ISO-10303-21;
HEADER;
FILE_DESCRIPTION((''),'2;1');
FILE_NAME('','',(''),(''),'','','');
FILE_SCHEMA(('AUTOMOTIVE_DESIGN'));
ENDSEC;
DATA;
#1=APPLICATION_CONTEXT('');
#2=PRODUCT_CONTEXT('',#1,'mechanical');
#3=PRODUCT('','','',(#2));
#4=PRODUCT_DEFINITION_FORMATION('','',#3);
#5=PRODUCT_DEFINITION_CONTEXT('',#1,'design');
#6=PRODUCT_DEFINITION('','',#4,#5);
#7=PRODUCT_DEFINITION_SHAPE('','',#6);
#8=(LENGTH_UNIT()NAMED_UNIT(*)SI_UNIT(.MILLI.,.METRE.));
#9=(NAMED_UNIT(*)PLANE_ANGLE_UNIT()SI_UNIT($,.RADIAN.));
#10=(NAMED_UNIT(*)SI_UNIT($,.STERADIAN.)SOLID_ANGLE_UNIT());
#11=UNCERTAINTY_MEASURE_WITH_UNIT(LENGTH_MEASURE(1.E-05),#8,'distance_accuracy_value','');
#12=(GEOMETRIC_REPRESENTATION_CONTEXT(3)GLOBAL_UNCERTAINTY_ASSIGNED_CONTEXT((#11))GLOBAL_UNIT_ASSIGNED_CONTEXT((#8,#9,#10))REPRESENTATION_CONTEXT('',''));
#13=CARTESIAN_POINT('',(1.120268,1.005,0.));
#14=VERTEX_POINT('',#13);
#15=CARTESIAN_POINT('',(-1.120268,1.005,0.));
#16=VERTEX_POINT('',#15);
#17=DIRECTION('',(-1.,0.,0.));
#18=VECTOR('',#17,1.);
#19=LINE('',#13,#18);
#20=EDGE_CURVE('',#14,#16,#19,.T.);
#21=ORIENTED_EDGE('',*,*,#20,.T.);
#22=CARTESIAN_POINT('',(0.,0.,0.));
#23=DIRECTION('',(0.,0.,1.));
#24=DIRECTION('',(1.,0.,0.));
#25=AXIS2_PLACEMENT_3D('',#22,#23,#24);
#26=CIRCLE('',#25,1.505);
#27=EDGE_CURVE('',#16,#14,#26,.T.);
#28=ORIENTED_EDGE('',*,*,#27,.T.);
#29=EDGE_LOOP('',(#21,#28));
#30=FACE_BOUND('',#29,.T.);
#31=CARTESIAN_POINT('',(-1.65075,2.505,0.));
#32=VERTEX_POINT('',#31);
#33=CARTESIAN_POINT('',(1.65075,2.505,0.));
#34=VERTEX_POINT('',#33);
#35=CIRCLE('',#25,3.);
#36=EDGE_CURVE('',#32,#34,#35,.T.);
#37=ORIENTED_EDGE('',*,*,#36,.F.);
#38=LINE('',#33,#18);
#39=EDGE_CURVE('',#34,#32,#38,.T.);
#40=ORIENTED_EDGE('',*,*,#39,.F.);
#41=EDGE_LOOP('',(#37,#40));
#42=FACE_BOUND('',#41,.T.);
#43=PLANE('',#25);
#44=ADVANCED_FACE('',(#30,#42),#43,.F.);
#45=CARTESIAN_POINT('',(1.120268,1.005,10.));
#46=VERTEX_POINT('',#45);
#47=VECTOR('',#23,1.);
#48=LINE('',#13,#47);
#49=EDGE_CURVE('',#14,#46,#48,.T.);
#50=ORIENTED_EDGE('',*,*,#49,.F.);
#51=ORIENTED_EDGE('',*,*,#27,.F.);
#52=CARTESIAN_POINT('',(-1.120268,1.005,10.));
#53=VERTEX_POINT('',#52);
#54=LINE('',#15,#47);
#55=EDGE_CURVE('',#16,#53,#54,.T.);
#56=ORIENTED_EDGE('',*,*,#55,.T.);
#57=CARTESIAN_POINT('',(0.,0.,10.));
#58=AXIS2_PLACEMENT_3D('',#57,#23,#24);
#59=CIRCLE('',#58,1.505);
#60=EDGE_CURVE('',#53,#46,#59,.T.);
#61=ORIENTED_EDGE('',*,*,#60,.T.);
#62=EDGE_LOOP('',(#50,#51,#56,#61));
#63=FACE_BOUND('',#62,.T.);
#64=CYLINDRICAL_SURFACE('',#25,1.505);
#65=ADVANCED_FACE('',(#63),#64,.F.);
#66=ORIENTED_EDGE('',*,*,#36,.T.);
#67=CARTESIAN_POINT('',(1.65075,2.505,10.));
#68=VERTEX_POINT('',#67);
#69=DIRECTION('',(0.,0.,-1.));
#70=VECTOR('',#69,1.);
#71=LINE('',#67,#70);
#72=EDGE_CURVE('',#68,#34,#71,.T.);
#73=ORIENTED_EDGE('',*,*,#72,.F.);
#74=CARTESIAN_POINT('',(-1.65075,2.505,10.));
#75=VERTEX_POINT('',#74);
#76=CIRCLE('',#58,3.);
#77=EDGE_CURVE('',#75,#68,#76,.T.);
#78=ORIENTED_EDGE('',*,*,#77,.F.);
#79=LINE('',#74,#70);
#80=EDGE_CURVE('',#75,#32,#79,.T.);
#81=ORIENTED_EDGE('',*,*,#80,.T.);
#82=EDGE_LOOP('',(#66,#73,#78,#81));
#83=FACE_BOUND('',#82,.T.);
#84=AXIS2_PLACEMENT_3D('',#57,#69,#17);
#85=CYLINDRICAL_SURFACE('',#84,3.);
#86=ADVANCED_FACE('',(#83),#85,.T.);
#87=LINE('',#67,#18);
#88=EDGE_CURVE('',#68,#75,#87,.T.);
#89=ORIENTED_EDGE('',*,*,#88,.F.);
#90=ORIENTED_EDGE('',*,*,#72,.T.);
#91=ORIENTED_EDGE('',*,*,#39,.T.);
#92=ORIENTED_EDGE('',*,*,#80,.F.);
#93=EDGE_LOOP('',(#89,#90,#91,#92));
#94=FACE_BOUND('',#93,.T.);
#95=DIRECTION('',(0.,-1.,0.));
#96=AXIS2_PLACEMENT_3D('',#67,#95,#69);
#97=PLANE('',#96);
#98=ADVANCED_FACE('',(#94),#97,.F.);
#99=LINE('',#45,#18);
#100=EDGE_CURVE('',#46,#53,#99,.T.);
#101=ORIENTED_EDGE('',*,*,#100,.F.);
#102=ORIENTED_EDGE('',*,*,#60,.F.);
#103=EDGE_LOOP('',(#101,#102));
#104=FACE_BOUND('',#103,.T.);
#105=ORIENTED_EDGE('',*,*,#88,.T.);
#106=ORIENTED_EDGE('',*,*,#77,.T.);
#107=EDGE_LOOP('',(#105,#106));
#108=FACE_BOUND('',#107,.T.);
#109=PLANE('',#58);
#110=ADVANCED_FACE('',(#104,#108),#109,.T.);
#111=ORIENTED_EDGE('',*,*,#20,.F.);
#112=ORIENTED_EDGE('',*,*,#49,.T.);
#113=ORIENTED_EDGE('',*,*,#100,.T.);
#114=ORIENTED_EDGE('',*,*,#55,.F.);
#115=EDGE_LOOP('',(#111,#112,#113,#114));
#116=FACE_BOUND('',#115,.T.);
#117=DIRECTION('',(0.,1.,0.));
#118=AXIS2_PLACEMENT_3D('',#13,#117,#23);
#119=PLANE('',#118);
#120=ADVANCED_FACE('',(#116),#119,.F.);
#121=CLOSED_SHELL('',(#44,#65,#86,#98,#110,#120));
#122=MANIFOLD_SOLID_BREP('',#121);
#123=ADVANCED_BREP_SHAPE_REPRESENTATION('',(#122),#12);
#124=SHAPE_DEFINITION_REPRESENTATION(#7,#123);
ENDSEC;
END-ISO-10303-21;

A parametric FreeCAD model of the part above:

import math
import FreeCAD as App
import Part
import Sketcher
from FreeCAD import Vector
Q = App.Units.Quantity

doc = App.newDocument("Part")
params = doc.addObject("Spreadsheet::Sheet", "Params")
for row, (alias, value) in enumerate([
    ("sketch1_diameter", "6 mm"),
    ("pad1_length", "10 mm"),
    ("pocket1_length", "10 mm"),
    ("sketch3_radius", "3 mm"),
    ("pocket2_length", "10 mm"),
], start=1):
    params.set(f"A{row}", alias)
    params.set(f"B{row}", "=" + value)
    params.setAlias(f"B{row}", alias)

body = doc.addObject("PartDesign::Body", "Body")

sketch1 = body.newObject("Sketcher::SketchObject", "Sketch")
sketch1.AttachmentSupport = (doc.getObject("XY_Plane"), [""])
sketch1.MapMode = "FlatFace"
sketch1.addGeometry(Part.Circle(Vector(0, 0, 0), Vector(0, 0, 1), 3), False)
sketch1.addConstraint([
    Sketcher.Constraint("Coincident", 0, 3, -1, 1),
    Sketcher.Constraint("Diameter", 0, Q("6 mm")),
])
sketch1.setExpression("Constraints[1]", "Params.sketch1_diameter")
pad1 = body.newObject("PartDesign::Pad", "Pad")
pad1.Profile = sketch1
pad1.setExpression("Length", "Params.pad1_length")

sketch2 = body.newObject("Sketcher::SketchObject", "Sketch001")
sketch2.AttachmentSupport = (doc.getObject("XY_Plane"), [""])
sketch2.MapMode = "FlatFace"
sketch2.AttachmentOffset = App.Placement(Vector(0, 0, 10), App.Rotation())
sketch2.addGeometry([
    Part.LineSegment(Vector(1.120268, 1.005, 0), Vector(-1.120268, 1.005, 0)),
    Part.ArcOfCircle(Part.Circle(Vector(0, 0, 0), Vector(0, 0, 1), 1.505), math.radians(138.104501), math.radians(401.895499)),
], False)
sketch2.addConstraint([
    Sketcher.Constraint("Coincident", 0, 1, 1, 2),
    Sketcher.Constraint("Coincident", 1, 1, 0, 2),
    Sketcher.Constraint("Horizontal", 0),
    Sketcher.Constraint("Coincident", 1, 3, -1, 1),
    Sketcher.Constraint("Radius", 1, Q("1.505 mm")),
    Sketcher.Constraint("DistanceY", -1, 1, 0, 1, Q("1.005 mm")),
])
pocket1 = body.newObject("PartDesign::Pocket", "Pocket")
pocket1.Profile = sketch2
pocket1.setExpression("Length", "Params.pocket1_length")

sketch3 = body.newObject("Sketcher::SketchObject", "Sketch002")
sketch3.AttachmentSupport = (doc.getObject("XY_Plane"), [""])
sketch3.MapMode = "FlatFace"
sketch3.addGeometry([
    Part.LineSegment(Vector(1.65075, 2.505, 0), Vector(-1.65075, 2.505, 0)),
    Part.ArcOfCircle(Part.Circle(Vector(0, 0, 0), Vector(0, 0, 1), 3), math.radians(56.615838), math.radians(123.384162)),
], False)
sketch3.addConstraint([
    Sketcher.Constraint("Coincident", 0, 1, 1, 1),
    Sketcher.Constraint("Coincident", 1, 2, 0, 2),
    Sketcher.Constraint("Horizontal", 0),
    Sketcher.Constraint("Coincident", 1, 3, -1, 1),
    Sketcher.Constraint("Radius", 1, Q("3 mm")),
    Sketcher.Constraint("DistanceX", 0, 2, 0, 1, Q("3.3015 mm")),
])
sketch3.setExpression("Constraints[4]", "Params.sketch3_radius")
pocket2 = body.newObject("PartDesign::Pocket", "Pocket001")
pocket2.Profile = sketch3
pocket2.setExpression("Length", "Params.pocket2_length")
pocket2.Reversed = True

doc.recompute()
